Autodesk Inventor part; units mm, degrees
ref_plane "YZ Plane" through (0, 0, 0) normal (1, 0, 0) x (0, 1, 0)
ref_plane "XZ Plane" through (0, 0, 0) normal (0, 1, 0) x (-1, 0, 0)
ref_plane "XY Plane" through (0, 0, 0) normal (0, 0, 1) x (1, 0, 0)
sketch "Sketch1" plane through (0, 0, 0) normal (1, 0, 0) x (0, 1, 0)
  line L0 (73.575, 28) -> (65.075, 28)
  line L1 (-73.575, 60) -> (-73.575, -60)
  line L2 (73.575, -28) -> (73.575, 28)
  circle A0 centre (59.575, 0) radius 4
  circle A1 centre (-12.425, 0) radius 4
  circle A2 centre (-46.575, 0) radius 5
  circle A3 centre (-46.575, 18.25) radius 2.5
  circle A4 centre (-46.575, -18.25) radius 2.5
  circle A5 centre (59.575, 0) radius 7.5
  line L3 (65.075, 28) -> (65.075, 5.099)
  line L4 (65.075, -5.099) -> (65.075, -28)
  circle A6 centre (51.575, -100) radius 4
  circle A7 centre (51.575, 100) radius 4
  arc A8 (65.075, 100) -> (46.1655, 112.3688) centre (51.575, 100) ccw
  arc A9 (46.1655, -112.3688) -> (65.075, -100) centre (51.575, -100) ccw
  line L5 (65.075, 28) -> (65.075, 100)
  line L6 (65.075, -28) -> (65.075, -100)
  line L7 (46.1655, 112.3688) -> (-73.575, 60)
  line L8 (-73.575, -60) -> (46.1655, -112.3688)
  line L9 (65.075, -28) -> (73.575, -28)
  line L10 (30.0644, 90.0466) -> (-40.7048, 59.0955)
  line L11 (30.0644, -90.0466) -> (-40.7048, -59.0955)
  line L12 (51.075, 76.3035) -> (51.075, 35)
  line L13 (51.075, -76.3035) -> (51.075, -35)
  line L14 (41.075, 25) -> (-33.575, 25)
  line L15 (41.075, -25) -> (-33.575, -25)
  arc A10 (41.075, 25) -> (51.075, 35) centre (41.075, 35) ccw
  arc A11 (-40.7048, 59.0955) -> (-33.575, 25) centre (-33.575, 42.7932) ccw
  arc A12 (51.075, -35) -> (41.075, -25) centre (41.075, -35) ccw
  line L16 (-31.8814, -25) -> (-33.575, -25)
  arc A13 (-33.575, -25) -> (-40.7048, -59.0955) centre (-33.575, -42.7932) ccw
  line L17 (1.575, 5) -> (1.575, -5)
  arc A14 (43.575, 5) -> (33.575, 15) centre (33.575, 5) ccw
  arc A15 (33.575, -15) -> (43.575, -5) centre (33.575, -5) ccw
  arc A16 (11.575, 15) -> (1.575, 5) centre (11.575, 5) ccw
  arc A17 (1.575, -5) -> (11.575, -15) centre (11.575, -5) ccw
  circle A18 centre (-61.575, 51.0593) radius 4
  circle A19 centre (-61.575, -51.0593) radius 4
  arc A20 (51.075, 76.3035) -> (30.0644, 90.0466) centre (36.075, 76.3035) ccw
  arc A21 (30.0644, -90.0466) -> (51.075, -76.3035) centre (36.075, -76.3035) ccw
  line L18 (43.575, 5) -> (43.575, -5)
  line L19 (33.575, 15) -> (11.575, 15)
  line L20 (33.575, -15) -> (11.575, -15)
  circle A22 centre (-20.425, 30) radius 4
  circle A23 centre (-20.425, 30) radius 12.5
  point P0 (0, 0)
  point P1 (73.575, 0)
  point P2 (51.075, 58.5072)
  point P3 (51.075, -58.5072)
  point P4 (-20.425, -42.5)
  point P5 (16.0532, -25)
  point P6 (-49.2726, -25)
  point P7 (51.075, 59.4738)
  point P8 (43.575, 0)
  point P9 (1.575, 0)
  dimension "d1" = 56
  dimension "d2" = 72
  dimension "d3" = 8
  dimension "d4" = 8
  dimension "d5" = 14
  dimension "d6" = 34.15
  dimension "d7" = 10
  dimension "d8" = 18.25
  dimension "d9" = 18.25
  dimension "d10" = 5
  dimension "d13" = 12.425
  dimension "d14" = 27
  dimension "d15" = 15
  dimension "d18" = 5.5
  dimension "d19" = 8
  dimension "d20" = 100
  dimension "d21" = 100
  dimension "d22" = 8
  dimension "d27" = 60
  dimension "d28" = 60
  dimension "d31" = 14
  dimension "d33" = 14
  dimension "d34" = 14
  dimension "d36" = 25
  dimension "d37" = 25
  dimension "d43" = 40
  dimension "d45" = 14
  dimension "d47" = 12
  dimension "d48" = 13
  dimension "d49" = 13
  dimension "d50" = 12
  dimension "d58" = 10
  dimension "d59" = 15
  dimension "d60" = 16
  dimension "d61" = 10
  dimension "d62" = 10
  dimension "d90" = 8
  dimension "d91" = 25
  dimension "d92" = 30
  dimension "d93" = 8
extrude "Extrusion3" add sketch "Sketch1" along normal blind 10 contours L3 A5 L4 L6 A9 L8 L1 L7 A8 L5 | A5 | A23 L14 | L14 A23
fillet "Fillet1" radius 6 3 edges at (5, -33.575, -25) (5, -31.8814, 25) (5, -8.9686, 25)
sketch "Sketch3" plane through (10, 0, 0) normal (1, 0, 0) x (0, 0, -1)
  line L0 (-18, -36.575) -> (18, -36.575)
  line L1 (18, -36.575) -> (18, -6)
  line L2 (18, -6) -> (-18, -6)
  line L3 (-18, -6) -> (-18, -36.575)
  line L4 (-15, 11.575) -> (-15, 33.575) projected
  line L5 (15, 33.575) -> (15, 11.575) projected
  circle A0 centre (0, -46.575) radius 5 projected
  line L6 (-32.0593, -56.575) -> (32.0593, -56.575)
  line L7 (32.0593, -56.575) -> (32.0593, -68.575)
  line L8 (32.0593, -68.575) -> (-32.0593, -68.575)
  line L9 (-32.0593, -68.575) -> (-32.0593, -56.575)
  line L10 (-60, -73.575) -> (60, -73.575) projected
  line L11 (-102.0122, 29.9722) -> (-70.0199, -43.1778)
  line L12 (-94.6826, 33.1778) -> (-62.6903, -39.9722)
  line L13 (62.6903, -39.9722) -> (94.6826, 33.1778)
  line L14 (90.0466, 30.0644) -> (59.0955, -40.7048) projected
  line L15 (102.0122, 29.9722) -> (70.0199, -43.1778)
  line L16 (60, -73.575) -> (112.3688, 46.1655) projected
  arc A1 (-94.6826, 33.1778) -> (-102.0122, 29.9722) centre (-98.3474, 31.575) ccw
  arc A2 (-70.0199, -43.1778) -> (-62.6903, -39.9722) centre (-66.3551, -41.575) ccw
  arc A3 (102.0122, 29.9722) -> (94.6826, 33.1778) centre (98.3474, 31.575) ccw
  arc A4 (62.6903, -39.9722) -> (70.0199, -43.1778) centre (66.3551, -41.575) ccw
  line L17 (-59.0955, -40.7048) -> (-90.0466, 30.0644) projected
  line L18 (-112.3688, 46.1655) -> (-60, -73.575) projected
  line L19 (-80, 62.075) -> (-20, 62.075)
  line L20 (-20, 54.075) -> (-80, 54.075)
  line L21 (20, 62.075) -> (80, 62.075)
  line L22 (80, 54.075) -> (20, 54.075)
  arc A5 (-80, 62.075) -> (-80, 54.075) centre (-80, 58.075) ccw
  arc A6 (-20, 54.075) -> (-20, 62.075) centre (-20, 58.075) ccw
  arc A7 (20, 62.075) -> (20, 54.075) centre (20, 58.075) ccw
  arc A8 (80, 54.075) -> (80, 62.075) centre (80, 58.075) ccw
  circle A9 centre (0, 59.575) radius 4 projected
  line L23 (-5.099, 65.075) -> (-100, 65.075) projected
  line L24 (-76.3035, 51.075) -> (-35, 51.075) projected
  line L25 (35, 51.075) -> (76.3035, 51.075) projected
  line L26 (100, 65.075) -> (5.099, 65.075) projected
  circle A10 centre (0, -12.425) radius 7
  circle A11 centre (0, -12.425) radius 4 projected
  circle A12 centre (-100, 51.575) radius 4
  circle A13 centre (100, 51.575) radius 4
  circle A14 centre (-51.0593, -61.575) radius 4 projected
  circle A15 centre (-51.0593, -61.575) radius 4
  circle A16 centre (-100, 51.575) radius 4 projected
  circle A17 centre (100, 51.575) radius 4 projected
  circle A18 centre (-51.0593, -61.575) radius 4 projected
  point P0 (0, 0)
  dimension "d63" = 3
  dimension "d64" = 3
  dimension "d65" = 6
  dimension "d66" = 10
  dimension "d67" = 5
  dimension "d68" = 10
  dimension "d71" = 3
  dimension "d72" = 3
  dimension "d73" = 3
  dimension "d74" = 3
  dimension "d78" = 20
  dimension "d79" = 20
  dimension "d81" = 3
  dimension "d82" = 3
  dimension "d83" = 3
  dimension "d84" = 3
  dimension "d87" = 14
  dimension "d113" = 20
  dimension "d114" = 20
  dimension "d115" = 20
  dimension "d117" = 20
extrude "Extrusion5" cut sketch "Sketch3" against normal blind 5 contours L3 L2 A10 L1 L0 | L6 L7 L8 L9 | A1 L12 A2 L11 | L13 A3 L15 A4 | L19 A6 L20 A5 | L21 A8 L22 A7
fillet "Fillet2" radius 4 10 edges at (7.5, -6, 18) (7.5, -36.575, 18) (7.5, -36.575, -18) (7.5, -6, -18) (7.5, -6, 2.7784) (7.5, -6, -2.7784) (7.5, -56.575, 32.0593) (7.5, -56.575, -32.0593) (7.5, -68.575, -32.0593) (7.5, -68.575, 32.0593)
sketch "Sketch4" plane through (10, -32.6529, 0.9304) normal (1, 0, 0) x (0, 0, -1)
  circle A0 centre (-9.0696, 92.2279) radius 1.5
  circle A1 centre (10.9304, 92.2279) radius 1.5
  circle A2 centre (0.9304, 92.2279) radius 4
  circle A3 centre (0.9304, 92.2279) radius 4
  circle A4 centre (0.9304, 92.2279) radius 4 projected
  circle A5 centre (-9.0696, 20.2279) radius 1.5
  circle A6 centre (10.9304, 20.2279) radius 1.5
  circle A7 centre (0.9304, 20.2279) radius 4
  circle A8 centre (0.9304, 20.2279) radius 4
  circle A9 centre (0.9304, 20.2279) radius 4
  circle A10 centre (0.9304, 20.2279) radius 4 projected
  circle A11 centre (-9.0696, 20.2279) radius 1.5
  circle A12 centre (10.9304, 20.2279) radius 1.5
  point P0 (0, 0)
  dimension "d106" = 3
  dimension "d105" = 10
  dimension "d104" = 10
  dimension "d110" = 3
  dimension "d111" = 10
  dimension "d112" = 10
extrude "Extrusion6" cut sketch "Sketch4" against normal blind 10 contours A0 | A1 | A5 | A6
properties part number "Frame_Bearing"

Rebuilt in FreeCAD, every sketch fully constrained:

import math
import FreeCAD as App
import Part
import Sketcher


def edges_at(feature, points):
    """Names of the edges that pass closest to the given points."""
    edges = feature.Shape.Edges
    near = lambda p: min(range(len(edges)), key=lambda i: edges[i].distToShape(Part.Vertex(*p))[0])
    return sorted({f"Edge{near(p) + 1}" for p in points})

doc = App.newDocument("Part")
body = doc.addObject("PartDesign::Body", "Body")

# Sketch on YZ plane
sketch1 = doc.addObject("Sketcher::SketchObject", "Sketch")
body.addObject(sketch1)
sketch1.AttachmentSupport = (doc.YZ_Plane, [""])
sketch1.MapMode = "FlatFace"
sketch1.addGeometry(Part.LineSegment(App.Vector(65.075, 5.099, 0), App.Vector(65.075, 100, 0)), False)
sketch1.addGeometry(Part.ArcOfCircle(Part.Circle(App.Vector(51.575, 100, 0), App.Vector(0, 0, 1), 13.5), math.radians(0), math.radians(113.622184)), False)
sketch1.addGeometry(Part.LineSegment(App.Vector(46.1655, 112.3688, 0), App.Vector(-73.575, 60, 0)), False)
sketch1.addGeometry(Part.LineSegment(App.Vector(-73.575, 60, 0), App.Vector(-73.575, -60, 0)), False)
sketch1.addGeometry(Part.LineSegment(App.Vector(-73.575, -60, 0), App.Vector(46.1655, -112.3688, 0)), False)
sketch1.addGeometry(Part.ArcOfCircle(Part.Circle(App.Vector(51.575, -100, 0), App.Vector(0, 0, 1), 13.499996), math.radians(-113.622184), math.radians(0)), False)
sketch1.addGeometry(Part.LineSegment(App.Vector(65.075, -100, 0), App.Vector(65.075, -5.099, 0)), False)
sketch1.addGeometry(Part.ArcOfCircle(Part.Circle(App.Vector(59.575, 0, 0), App.Vector(0, 0, 1), 7.5), math.radians(-42.833319), math.radians(42.833319)), False)
sketch1.addGeometry(Part.ArcOfCircle(Part.Circle(App.Vector(36.075, -76.3035, 0), App.Vector(0, 0, 1), 15.000004), math.radians(-113.622357), math.radians(0)), False)
sketch1.addGeometry(Part.LineSegment(App.Vector(30.0644, -90.0466, 0), App.Vector(-40.7048, -59.0955, 0)), False)
sketch1.addGeometry(Part.ArcOfCircle(Part.Circle(App.Vector(-33.575, -42.7932, 0), App.Vector(0, 0, 1), 17.7932), math.radians(90), math.radians(246.377868)), False)
sketch1.addGeometry(Part.LineSegment(App.Vector(-33.575, -25, 0), App.Vector(41.075, -25, 0)), False)
sketch1.addGeometry(Part.ArcOfCircle(Part.Circle(App.Vector(41.075, -35, 0), App.Vector(0, 0, 1), 10), math.radians(0), math.radians(90)), False)
sketch1.addGeometry(Part.LineSegment(App.Vector(51.075, -35, 0), App.Vector(51.075, -76.3035, 0)), False)
sketch1.addGeometry(Part.Circle(App.Vector(-61.575, -51.0593, 0), App.Vector(0, 0, 1), 4), False)
sketch1.addGeometry(Part.Circle(App.Vector(-46.575, -18.25, 0), App.Vector(0, 0, 1), 2.5), False)
sketch1.addGeometry(Part.Circle(App.Vector(-46.575, 0, 0), App.Vector(0, 0, 1), 5), False)
sketch1.addGeometry(Part.Circle(App.Vector(-12.425, 0, 0), App.Vector(0, 0, 1), 4), False)
sketch1.addGeometry(Part.Circle(App.Vector(51.575, -100, 0), App.Vector(0, 0, 1), 4), False)
sketch1.addGeometry(Part.LineSegment(App.Vector(1.575, -5, 0), App.Vector(1.575, 5, 0)), False)
sketch1.addGeometry(Part.ArcOfCircle(Part.Circle(App.Vector(11.575, 5, 0), App.Vector(0, 0, 1), 10), math.radians(90), math.radians(180)), False)
sketch1.addGeometry(Part.LineSegment(App.Vector(11.575, 15, 0), App.Vector(33.575, 15, 0)), False)
sketch1.addGeometry(Part.ArcOfCircle(Part.Circle(App.Vector(33.575, 5, 0), App.Vector(0, 0, 1), 10), math.radians(0), math.radians(90)), False)
sketch1.addGeometry(Part.LineSegment(App.Vector(43.575, 5, 0), App.Vector(43.575, -5, 0)), False)
sketch1.addGeometry(Part.ArcOfCircle(Part.Circle(App.Vector(33.575, -5, 0), App.Vector(0, 0, 1), 10), math.radians(-90), math.radians(0)), False)
sketch1.addGeometry(Part.LineSegment(App.Vector(33.575, -15, 0), App.Vector(11.575, -15, 0)), False)
sketch1.addGeometry(Part.ArcOfCircle(Part.Circle(App.Vector(11.575, -5, 0), App.Vector(0, 0, 1), 10), math.radians(180), math.radians(270)), False)
sketch1.addGeometry(Part.Circle(App.Vector(-46.575, 18.25, 0), App.Vector(0, 0, 1), 2.5), False)
sketch1.addGeometry(Part.Circle(App.Vector(-61.575, 51.0593, 0), App.Vector(0, 0, 1), 4), False)
sketch1.addGeometry(Part.LineSegment(App.Vector(-40.7048, 59.0955, 0), App.Vector(30.0644, 90.0466, 0)), False)
sketch1.addGeometry(Part.ArcOfCircle(Part.Circle(App.Vector(36.075, 76.3035, 0), App.Vector(0, 0, 1), 15), math.radians(0), math.radians(113.622357)), False)
sketch1.addGeometry(Part.LineSegment(App.Vector(51.075, 76.3035, 0), App.Vector(51.075, 35, 0)), False)
sketch1.addGeometry(Part.ArcOfCircle(Part.Circle(App.Vector(41.075, 35, 0), App.Vector(0, 0, 1), 10), math.radians(-90), math.radians(0)), False)
sketch1.addGeometry(Part.LineSegment(App.Vector(41.075, 25, 0), App.Vector(-8.968561, 25, 0)), False)
sketch1.addGeometry(Part.ArcOfCircle(Part.Circle(App.Vector(-20.425, 30, 0), App.Vector(0, 0, 1), 12.5), math.radians(-23.578178), math.radians(203.578178)), False)
sketch1.addGeometry(Part.LineSegment(App.Vector(-31.881439, 25, 0), App.Vector(-33.575, 25, 0)), False)
sketch1.addGeometry(Part.ArcOfCircle(Part.Circle(App.Vector(-33.575, 42.7932, 0), App.Vector(0, 0, 1), 17.79323), math.radians(113.622132), math.radians(270)), False)
sketch1.addGeometry(Part.Circle(App.Vector(51.575, 100, 0), App.Vector(0, 0, 1), 4), False)
sketch1.addGeometry(Part.Circle(App.Vector(59.575, 0, 0), App.Vector(0, 0, 1), 4), False)
sketch1.addGeometry(Part.Circle(App.Vector(-20.425, 30, 0), App.Vector(0, 0, 1), 4), False)
sketch1.addConstraint(Sketcher.Constraint("Tangent", 0, 2, 1, 1))
sketch1.addConstraint(Sketcher.Constraint("Tangent", 1, 2, 2, 1))
sketch1.addConstraint(Sketcher.Constraint("Coincident", 2, 2, 3, 1))
sketch1.addConstraint(Sketcher.Constraint("Coincident", 3, 2, 4, 1))
sketch1.addConstraint(Sketcher.Constraint("Tangent", 4, 2, 5, 1))
sketch1.addConstraint(Sketcher.Constraint("Tangent", 5, 2, 6, 1))
sketch1.addConstraint(Sketcher.Constraint("Coincident", 6, 2, 7, 1))
sketch1.addConstraint(Sketcher.Constraint("Coincident", 7, 2, 0, 1))
sketch1.addConstraint(Sketcher.Constraint("Tangent", 8, 1, 9, 1))
sketch1.addConstraint(Sketcher.Constraint("Tangent", 9, 2, 10, 2))
sketch1.addConstraint(Sketcher.Constraint("Tangent", 10, 1, 11, 1))
sketch1.addConstraint(Sketcher.Constraint("Tangent", 11, 2, 12, 2))
sketch1.addConstraint(Sketcher.Constraint("Tangent", 12, 1, 13, 1))
sketch1.addConstraint(Sketcher.Constraint("Tangent", 13, 2, 8, 2))
sketch1.addConstraint(Sketcher.Constraint("Tangent", 19, 2, 20, 2))
sketch1.addConstraint(Sketcher.Constraint("Tangent", 20, 1, 21, 1))
sketch1.addConstraint(Sketcher.Constraint("Tangent", 21, 2, 22, 2))
sketch1.addConstraint(Sketcher.Constraint("Tangent", 22, 1, 23, 1))
sketch1.addConstraint(Sketcher.Constraint("Tangent", 23, 2, 24, 2))
sketch1.addConstraint(Sketcher.Constraint("Tangent", 24, 1, 25, 1))
sketch1.addConstraint(Sketcher.Constraint("Tangent", 25, 2, 26, 2))
sketch1.addConstraint(Sketcher.Constraint("Tangent", 26, 1, 19, 1))
sketch1.addConstraint(Sketcher.Constraint("Tangent", 29, 2, 30, 2))
sketch1.addConstraint(Sketcher.Constraint("Tangent", 30, 1, 31, 1))
sketch1.addConstraint(Sketcher.Constraint("Tangent", 31, 2, 32, 2))
sketch1.addConstraint(Sketcher.Constraint("Tangent", 32, 1, 33, 1))
sketch1.addConstraint(Sketcher.Constraint("Coincident", 33, 2, 34, 1))
sketch1.addConstraint(Sketcher.Constraint("Coincident", 34, 2, 35, 1))
sketch1.addConstraint(Sketcher.Constraint("Tangent", 35, 2, 36, 2))
sketch1.addConstraint(Sketcher.Constraint("Tangent", 36, 1, 29, 1))
sketch1.addConstraint(Sketcher.Constraint("Vertical", 0))
sketch1.addConstraint(Sketcher.Constraint("Vertical", 3))
sketch1.addConstraint(Sketcher.Constraint("Vertical", 6))
sketch1.addConstraint(Sketcher.Constraint("Horizontal", 11))
sketch1.addConstraint(Sketcher.Constraint("Vertical", 13))
sketch1.addConstraint(Sketcher.Constraint("Vertical", 19))
sketch1.addConstraint(Sketcher.Constraint("Horizontal", 21))
sketch1.addConstraint(Sketcher.Constraint("Vertical", 23))
sketch1.addConstraint(Sketcher.Constraint("Horizontal", 25))
sketch1.addConstraint(Sketcher.Constraint("Vertical", 31))
sketch1.addConstraint(Sketcher.Constraint("Horizontal", 33))
sketch1.addConstraint(Sketcher.Constraint("Horizontal", 35))
sketch1.addConstraint(Sketcher.Constraint("Coincident", 18, 3, 5, 3))
sketch1.addConstraint(Sketcher.Constraint("Coincident", 37, 3, 1, 3))
sketch1.addConstraint(Sketcher.Constraint("Coincident", 38, 3, 7, 3))
sketch1.addConstraint(Sketcher.Constraint("Coincident", 39, 3, 34, 3))
sketch1.addConstraint(Sketcher.Constraint("Equal", 1, 5))
sketch1.addConstraint(Sketcher.Constraint("Equal", 14, 17))
sketch1.addConstraint(Sketcher.Constraint("Equal", 17, 18))
sketch1.addConstraint(Sketcher.Constraint("Equal", 12, 20))
sketch1.addConstraint(Sketcher.Constraint("Equal", 20, 22))
sketch1.addConstraint(Sketcher.Constraint("Equal", 22, 24))
sketch1.addConstraint(Sketcher.Constraint("Equal", 24, 26))
sketch1.addConstraint(Sketcher.Constraint("Equal", 15, 27))
sketch1.addConstraint(Sketcher.Constraint("Equal", 18, 28))
sketch1.addConstraint(Sketcher.Constraint("Equal", 8, 30))
sketch1.addConstraint(Sketcher.Constraint("Equal", 26, 32))
sketch1.addConstraint(Sketcher.Constraint("Equal", 10, 36))
sketch1.addConstraint(Sketcher.Constraint("Equal", 28, 37))
sketch1.addConstraint(Sketcher.Constraint("Equal", 37, 38))
sketch1.addConstraint(Sketcher.Constraint("Equal", 38, 39))
sketch1.addConstraint(Sketcher.Constraint("Symmetric", 1, 3, 5, 3, -1))
sketch1.addConstraint(Sketcher.Constraint("Symmetric", 15, 3, 27, 3, -1))
sketch1.addConstraint(Sketcher.Constraint("Symmetric", 14, 3, 28, 3, -1))
sketch1.addConstraint(Sketcher.Constraint("Symmetric", 8, 3, 30, 3, -1))
sketch1.addConstraint(Sketcher.Constraint("Symmetric", 10, 3, 36, 3, -1))
sketch1.addConstraint(Sketcher.Constraint("PointOnObject", 7, 3, -1))
sketch1.addConstraint(Sketcher.Constraint("PointOnObject", 16, 3, -1))
sketch1.addConstraint(Sketcher.Constraint("PointOnObject", 17, 3, -1))
sketch1.addConstraint(Sketcher.Constraint("Parallel", 4, 9))
sketch1.addConstraint(Sketcher.Constraint("Parallel", 2, 29))
sketch1.addConstraint(Sketcher.Constraint("Horizontal", 33, 2, 34, 2))
sketch1.addConstraint(Sketcher.Constraint("Vertical", 15, 3, 16, 3))
sketch1.addConstraint(Sketcher.Constraint("Diameter", 14, 8.0))
sketch1.addConstraint(Sketcher.Constraint("Diameter", 15, 5.0))
sketch1.addConstraint(Sketcher.Constraint("Diameter", 16, 10.0))
sketch1.addConstraint(Sketcher.Constraint("Radius", 8, 15.0))
sketch1.addConstraint(Sketcher.Constraint("Radius", 12, 10.0))
sketch1.addConstraint(Sketcher.Constraint("Radius", 1, 13.5))
sketch1.addConstraint(Sketcher.Constraint("Radius", 7, 7.5))
sketch1.addConstraint(Sketcher.Constraint("Radius", 34, 12.5))
sketch1.addConstraint(Sketcher.Constraint("DistanceY", 19, 1, 19, 2, 10.0))
sketch1.addConstraint(Sketcher.Constraint("DistanceY", -1, 1, 1, 3, 100.0))
sketch1.addConstraint(Sketcher.Constraint("DistanceY", -1, 1, 20, 3, 5.0))
sketch1.addConstraint(Sketcher.Constraint("DistanceY", -1, 1, 34, 3, 30.0))
sketch1.addConstraint(Sketcher.Constraint("DistanceY", -1, 1, 2, 2, 60.0))
sketch1.addConstraint(Sketcher.Constraint("DistanceY", 10, 1, -1, 1, 25.0))
sketch1.addConstraint(Sketcher.Constraint("DistanceX", 1, 3, 7, 3, 8.0))
sketch1.addConstraint(Sketcher.Constraint("DistanceX", 15, 3, 10, 3, 13.0))
sketch1.addConstraint(Sketcher.Constraint("DistanceX", 14, 3, 15, 3, 15.0))
sketch1.addConstraint(Sketcher.Constraint("DistanceX", 34, 3, 17, 3, 8.0))
sketch1.addConstraint(Sketcher.Constraint("DistanceX", 2, 2, 28, 3, 12.0))
sketch1.addConstraint(Sketcher.Constraint("DistanceX", 12, 1, 6, 2, 14.0))
sketch1.addConstraint(Sketcher.Constraint("DistanceX", 17, 3, 19, 2, 14.0))
sketch1.addConstraint(Sketcher.Constraint("DistanceX", 22, 1, 7, 3, 16.0))
sketch1.addConstraint(Sketcher.Constraint("DistanceX", 21, 1, 21, 2, 22.0))
sketch1.addConstraint(Sketcher.Constraint("DistanceY", 15, 3, -1, 1, 18.25))
sketch1.addConstraint(Sketcher.Constraint("DistanceX", 16, 3, 17, 3, 34.15))
sketch1.addConstraint(Sketcher.Constraint("DistanceX", 17, 3, -1, 1, 12.425))
sketch1.addConstraint(Sketcher.Constraint("Radius", 10, 17.7932))
sketch1.addConstraint(Sketcher.Constraint("DistanceY", 14, 3, 10, 3, 8.266))
pad1 = doc.addObject("PartDesign::Pad", "Pad")
body.addObject(pad1)
pad1.Profile = sketch1
pad1.Length = 10
doc.recompute()

fillet = doc.addObject("PartDesign::Fillet", "Fillet")
body.addObject(fillet)
fillet.Base = (pad1, edges_at(pad1, [(5, -33.575, -25), (5, -31.881, 25), (5, -8.969, 25)]))
fillet.Radius = 6

# Sketch on YZ plane
sketch2 = doc.addObject("Sketcher::SketchObject", "Sketch001")
body.addObject(sketch2)
sketch2.AttachmentSupport = (doc.YZ_Plane, [""])
sketch2.MapMode = "FlatFace"
sketch2.AttachmentOffset = App.Placement(App.Vector(0, 0, 10), App.Rotation())
sketch2.addGeometry(Part.LineSegment(App.Vector(-6, 18, 0), App.Vector(-36.575, 18, 0)), False)
sketch2.addGeometry(Part.LineSegment(App.Vector(-36.575, 18, 0), App.Vector(-36.575, -18, 0)), False)
sketch2.addGeometry(Part.LineSegment(App.Vector(-36.575, -18, 0), App.Vector(-6, -18, 0)), False)
sketch2.addGeometry(Part.LineSegment(App.Vector(-6, -18, 0), App.Vector(-6, -2.778376, 0)), False)
sketch2.addGeometry(Part.ArcOfCircle(Part.Circle(App.Vector(-12.425, 0, 0), App.Vector(0, 0, 1), 7), math.radians(23.385206), math.radians(336.614794)), False)
sketch2.addGeometry(Part.LineSegment(App.Vector(-6, 2.778376, 0), App.Vector(-6, 18, 0)), False)
sketch2.addGeometry(Part.LineSegment(App.Vector(-56.575, -32.0593, 0), App.Vector(-56.575, 32.0593, 0)), False)
sketch2.addGeometry(Part.LineSegment(App.Vector(-56.575, 32.0593, 0), App.Vector(-68.575, 32.0593, 0)), False)
sketch2.addGeometry(Part.LineSegment(App.Vector(-68.575, 32.0593, 0), App.Vector(-68.575, -32.0593, 0)), False)
sketch2.addGeometry(Part.LineSegment(App.Vector(-68.575, -32.0593, 0), App.Vector(-56.575, -32.0593, 0)), False)
sketch2.addGeometry(Part.ArcOfCircle(Part.Circle(App.Vector(31.575, 98.3474, 0), App.Vector(0, 0, 1), 3.999966), math.radians(-66.37784), math.radians(113.62216)), False)
sketch2.addGeometry(Part.LineSegment(App.Vector(29.9722, 102.0122, 0), App.Vector(-43.1778, 70.0199, 0)), False)
sketch2.addGeometry(Part.ArcOfCircle(Part.Circle(App.Vector(-41.575, 66.3551, 0), App.Vector(0, 0, 1), 3.999966), math.radians(113.62216), math.radians(293.62216)), False)
sketch2.addGeometry(Part.LineSegment(App.Vector(-39.9722, 62.6903, 0), App.Vector(33.1778, 94.6826, 0)), False)
sketch2.addGeometry(Part.LineSegment(App.Vector(33.1778, -94.6826, 0), App.Vector(-39.9722, -62.6903, 0)), False)
sketch2.addGeometry(Part.ArcOfCircle(Part.Circle(App.Vector(-41.575, -66.3551, 0), App.Vector(0, 0, 1), 3.999966), math.radians(66.37784), math.radians(246.37784)), False)
sketch2.addGeometry(Part.LineSegment(App.Vector(-43.1778, -70.0199, 0), App.Vector(29.9722, -102.0122, 0)), False)
sketch2.addGeometry(Part.ArcOfCircle(Part.Circle(App.Vector(31.575, -98.3474, 0), App.Vector(0, 0, 1), 3.999966), math.radians(-113.62216), math.radians(66.37784)), False)
sketch2.addGeometry(Part.LineSegment(App.Vector(62.075, 20, 0), App.Vector(62.075, 80, 0)), False)
sketch2.addGeometry(Part.ArcOfCircle(Part.Circle(App.Vector(58.075, 80, 0), App.Vector(0, 0, 1), 4), math.radians(0), math.radians(180)), False)
sketch2.addGeometry(Part.LineSegment(App.Vector(54.075, 80, 0), App.Vector(54.075, 20, 0)), False)
sketch2.addGeometry(Part.ArcOfCircle(Part.Circle(App.Vector(58.075, 20, 0), App.Vector(0, 0, 1), 4), math.radians(180), math.radians(360)), False)
sketch2.addGeometry(Part.LineSegment(App.Vector(62.075, -80, 0), App.Vector(62.075, -20, 0)), False)
sketch2.addGeometry(Part.ArcOfCircle(Part.Circle(App.Vector(58.075, -20, 0), App.Vector(0, 0, 1), 4), math.radians(0), math.radians(180)), False)
sketch2.addGeometry(Part.LineSegment(App.Vector(54.075, -20, 0), App.Vector(54.075, -80, 0)), False)
sketch2.addGeometry(Part.ArcOfCircle(Part.Circle(App.Vector(58.075, -80, 0), App.Vector(0, 0, 1), 4), math.radians(180), math.radians(360)), False)
sketch2.addConstraint(Sketcher.Constraint("Coincident", 0, 2, 1, 1))
sketch2.addConstraint(Sketcher.Constraint("Coincident", 1, 2, 2, 1))
sketch2.addConstraint(Sketcher.Constraint("Coincident", 2, 2, 3, 1))
sketch2.addConstraint(Sketcher.Constraint("Coincident", 3, 2, 4, 2))
sketch2.addConstraint(Sketcher.Constraint("Coincident", 4, 1, 5, 1))
sketch2.addConstraint(Sketcher.Constraint("Coincident", 5, 2, 0, 1))
sketch2.addConstraint(Sketcher.Constraint("Coincident", 6, 2, 7, 1))
sketch2.addConstraint(Sketcher.Constraint("Coincident", 7, 2, 8, 1))
sketch2.addConstraint(Sketcher.Constraint("Coincident", 8, 2, 9, 1))
sketch2.addConstraint(Sketcher.Constraint("Coincident", 9, 2, 6, 1))
sketch2.addConstraint(Sketcher.Constraint("Tangent", 10, 2, 11, 1))
sketch2.addConstraint(Sketcher.Constraint("Tangent", 11, 2, 12, 1))
sketch2.addConstraint(Sketcher.Constraint("Tangent", 12, 2, 13, 1))
sketch2.addConstraint(Sketcher.Constraint("Tangent", 13, 2, 10, 1))
sketch2.addConstraint(Sketcher.Constraint("Tangent", 14, 2, 15, 1))
sketch2.addConstraint(Sketcher.Constraint("Tangent", 15, 2, 16, 1))
sketch2.addConstraint(Sketcher.Constraint("Tangent", 16, 2, 17, 1))
sketch2.addConstraint(Sketcher.Constraint("Tangent", 17, 2, 14, 1))
sketch2.addConstraint(Sketcher.Constraint("Tangent", 18, 2, 19, 1))
sketch2.addConstraint(Sketcher.Constraint("Tangent", 19, 2, 20, 1))
sketch2.addConstraint(Sketcher.Constraint("Tangent", 20, 2, 21, 1))
sketch2.addConstraint(Sketcher.Constraint("Tangent", 21, 2, 18, 1))
sketch2.addConstraint(Sketcher.Constraint("Tangent", 22, 2, 23, 1))
sketch2.addConstraint(Sketcher.Constraint("Tangent", 23, 2, 24, 1))
sketch2.addConstraint(Sketcher.Constraint("Tangent", 24, 2, 25, 1))
sketch2.addConstraint(Sketcher.Constraint("Tangent", 25, 2, 22, 1))
sketch2.addConstraint(Sketcher.Constraint("Horizontal", 0))
sketch2.addConstraint(Sketcher.Constraint("Vertical", 1))
sketch2.addConstraint(Sketcher.Constraint("Horizontal", 2))
sketch2.addConstraint(Sketcher.Constraint("Vertical", 3))
sketch2.addConstraint(Sketcher.Constraint("Vertical", 5))
sketch2.addConstraint(Sketcher.Constraint("Vertical", 6))
sketch2.addConstraint(Sketcher.Constraint("Horizontal", 7))
sketch2.addConstraint(Sketcher.Constraint("Vertical", 8))
sketch2.addConstraint(Sketcher.Constraint("Horizontal", 9))
sketch2.addConstraint(Sketcher.Constraint("Vertical", 18))
sketch2.addConstraint(Sketcher.Constraint("Vertical", 20))
sketch2.addConstraint(Sketcher.Constraint("Vertical", 22))
sketch2.addConstraint(Sketcher.Constraint("Vertical", 24))
sketch2.addConstraint(Sketcher.Constraint("Equal", 10, 12))
sketch2.addConstraint(Sketcher.Constraint("Equal", 12, 15))
sketch2.addConstraint(Sketcher.Constraint("Equal", 15, 17))
sketch2.addConstraint(Sketcher.Constraint("Equal", 17, 19))
sketch2.addConstraint(Sketcher.Constraint("Equal", 21, 23))
sketch2.addConstraint(Sketcher.Constraint("Symmetric", 12, 3, 15, 3, -1))
sketch2.addConstraint(Sketcher.Constraint("Symmetric", 10, 3, 17, 3, -1))
sketch2.addConstraint(Sketcher.Constraint("Symmetric", 21, 3, 23, 3, -1))
sketch2.addConstraint(Sketcher.Constraint("Symmetric", 3, 2, 4, 1, -1))
sketch2.addConstraint(Sketcher.Constraint("Equal", 3, 5))
sketch2.addConstraint(Sketcher.Constraint("Equal", 20, 22))
sketch2.addConstraint(Sketcher.Constraint("Radius", 4, 7.0))
sketch2.addConstraint(Sketcher.Constraint("DistanceY", -1, 1, 21, 3, 20.0))
sketch2.addConstraint(Sketcher.Constraint("DistanceX", 2, 2, -1, 1, 6.0))
sketch2.addConstraint(Sketcher.Constraint("Radius", 10, 4.0))
sketch2.addConstraint(Sketcher.Constraint("DistanceX", 12, 3, 0, 2, 5.0))
sketch2.addConstraint(Sketcher.Constraint("DistanceX", 6, 2, 0, 2, 20.0))
sketch2.addConstraint(Sketcher.Constraint("DistanceX", 7, 2, 7, 1, 12.0))
sketch2.addConstraint(Sketcher.Constraint("DistanceY", 1, 2, 1, 1, 36.0))
sketch2.addConstraint(Sketcher.Constraint("DistanceY", 18, 1, 18, 2, 60.0))
sketch2.addConstraint(Sketcher.Constraint("DistanceX", 4, 3, 10, 3, 44.0))
sketch2.addConstraint(Sketcher.Constraint("DistanceX", 10, 3, 19, 3, 26.5))
sketch2.addConstraint(Sketcher.Constraint("Distance", 11, 79.84))
sketch2.addConstraint(Sketcher.Constraint("DistanceX", 0, 2, 0, 1, 30.575))
sketch2.addConstraint(Sketcher.Constraint("DistanceY", -1, 1, 11, 2, 70.02))
sketch2.addConstraint(Sketcher.Constraint("DistanceX", 12, 3, 4, 3, 29.15))
sketch2.addConstraint(Sketcher.Constraint("DistanceY", 6, 1, 6, 2, 64.1186))
sketch2.addConstraint(Sketcher.Constraint("DistanceY", 6, 2, 12, 2, 30.631))
pocket1 = doc.addObject("PartDesign::Pocket", "Pocket")
body.addObject(pocket1)
pocket1.Profile = sketch2
pocket1.Length = 5
doc.recompute()

fillet2 = doc.addObject("PartDesign::Fillet", "Fillet001")
body.addObject(fillet2)
fillet2.Base = (pocket1, edges_at(pocket1, [
    (7.5, -6, 18),
    (7.5, -36.575, 18),
    (7.5, -36.575, -18),
    (7.5, -6, -18),
    (7.5, -6, 2.778),
    (7.5, -6, -2.778),
    (7.5, -56.575, 32.059),
    (7.5, -56.575, -32.059),
    (7.5, -68.575, -32.059),
    (7.5, -68.575, 32.059),
]))
fillet2.Radius = 4

# Sketch on YZ plane
sketch3 = doc.addObject("Sketcher::SketchObject", "Sketch002")
body.addObject(sketch3)
sketch3.AttachmentSupport = (doc.YZ_Plane, [""])
sketch3.MapMode = "FlatFace"
sketch3.AttachmentOffset = App.Placement(App.Vector(0, 0, 10), App.Rotation())
sketch3.addGeometry(Part.Circle(App.Vector(59.575, 10, 0), App.Vector(0, 0, 1), 1.5), False)
sketch3.addGeometry(Part.Circle(App.Vector(59.575, -10, 0), App.Vector(0, 0, 1), 1.5), False)
sketch3.addGeometry(Part.Circle(App.Vector(-12.425, 10, 0), App.Vector(0, 0, 1), 1.5), False)
sketch3.addGeometry(Part.Circle(App.Vector(-12.425, -10, 0), App.Vector(0, 0, 1), 1.5), False)
sketch3.addConstraint(Sketcher.Constraint("Equal", 0, 1))
sketch3.addConstraint(Sketcher.Constraint("Equal", 1, 2))
sketch3.addConstraint(Sketcher.Constraint("Equal", 2, 3))
sketch3.addConstraint(Sketcher.Constraint("Symmetric", 0, 3, 1, 3, -1))
sketch3.addConstraint(Sketcher.Constraint("Symmetric", 2, 3, 3, 3, -1))
sketch3.addConstraint(Sketcher.Constraint("Horizontal", 0, 3, 2, 3))
sketch3.addConstraint(Sketcher.Constraint("Diameter", 0, 3.0))
sketch3.addConstraint(Sketcher.Constraint("DistanceY", -1, 1, 0, 3, 10.0))
sketch3.addConstraint(Sketcher.Constraint("DistanceX", 2, 3, 0, 3, 72.0))
sketch3.addConstraint(Sketcher.Constraint("DistanceX", -1, 1, 0, 3, 59.575))
pocket2 = doc.addObject("PartDesign::Pocket", "Pocket001")
body.addObject(pocket2)
pocket2.Profile = sketch3
pocket2.Length = 10

doc.recompute()
